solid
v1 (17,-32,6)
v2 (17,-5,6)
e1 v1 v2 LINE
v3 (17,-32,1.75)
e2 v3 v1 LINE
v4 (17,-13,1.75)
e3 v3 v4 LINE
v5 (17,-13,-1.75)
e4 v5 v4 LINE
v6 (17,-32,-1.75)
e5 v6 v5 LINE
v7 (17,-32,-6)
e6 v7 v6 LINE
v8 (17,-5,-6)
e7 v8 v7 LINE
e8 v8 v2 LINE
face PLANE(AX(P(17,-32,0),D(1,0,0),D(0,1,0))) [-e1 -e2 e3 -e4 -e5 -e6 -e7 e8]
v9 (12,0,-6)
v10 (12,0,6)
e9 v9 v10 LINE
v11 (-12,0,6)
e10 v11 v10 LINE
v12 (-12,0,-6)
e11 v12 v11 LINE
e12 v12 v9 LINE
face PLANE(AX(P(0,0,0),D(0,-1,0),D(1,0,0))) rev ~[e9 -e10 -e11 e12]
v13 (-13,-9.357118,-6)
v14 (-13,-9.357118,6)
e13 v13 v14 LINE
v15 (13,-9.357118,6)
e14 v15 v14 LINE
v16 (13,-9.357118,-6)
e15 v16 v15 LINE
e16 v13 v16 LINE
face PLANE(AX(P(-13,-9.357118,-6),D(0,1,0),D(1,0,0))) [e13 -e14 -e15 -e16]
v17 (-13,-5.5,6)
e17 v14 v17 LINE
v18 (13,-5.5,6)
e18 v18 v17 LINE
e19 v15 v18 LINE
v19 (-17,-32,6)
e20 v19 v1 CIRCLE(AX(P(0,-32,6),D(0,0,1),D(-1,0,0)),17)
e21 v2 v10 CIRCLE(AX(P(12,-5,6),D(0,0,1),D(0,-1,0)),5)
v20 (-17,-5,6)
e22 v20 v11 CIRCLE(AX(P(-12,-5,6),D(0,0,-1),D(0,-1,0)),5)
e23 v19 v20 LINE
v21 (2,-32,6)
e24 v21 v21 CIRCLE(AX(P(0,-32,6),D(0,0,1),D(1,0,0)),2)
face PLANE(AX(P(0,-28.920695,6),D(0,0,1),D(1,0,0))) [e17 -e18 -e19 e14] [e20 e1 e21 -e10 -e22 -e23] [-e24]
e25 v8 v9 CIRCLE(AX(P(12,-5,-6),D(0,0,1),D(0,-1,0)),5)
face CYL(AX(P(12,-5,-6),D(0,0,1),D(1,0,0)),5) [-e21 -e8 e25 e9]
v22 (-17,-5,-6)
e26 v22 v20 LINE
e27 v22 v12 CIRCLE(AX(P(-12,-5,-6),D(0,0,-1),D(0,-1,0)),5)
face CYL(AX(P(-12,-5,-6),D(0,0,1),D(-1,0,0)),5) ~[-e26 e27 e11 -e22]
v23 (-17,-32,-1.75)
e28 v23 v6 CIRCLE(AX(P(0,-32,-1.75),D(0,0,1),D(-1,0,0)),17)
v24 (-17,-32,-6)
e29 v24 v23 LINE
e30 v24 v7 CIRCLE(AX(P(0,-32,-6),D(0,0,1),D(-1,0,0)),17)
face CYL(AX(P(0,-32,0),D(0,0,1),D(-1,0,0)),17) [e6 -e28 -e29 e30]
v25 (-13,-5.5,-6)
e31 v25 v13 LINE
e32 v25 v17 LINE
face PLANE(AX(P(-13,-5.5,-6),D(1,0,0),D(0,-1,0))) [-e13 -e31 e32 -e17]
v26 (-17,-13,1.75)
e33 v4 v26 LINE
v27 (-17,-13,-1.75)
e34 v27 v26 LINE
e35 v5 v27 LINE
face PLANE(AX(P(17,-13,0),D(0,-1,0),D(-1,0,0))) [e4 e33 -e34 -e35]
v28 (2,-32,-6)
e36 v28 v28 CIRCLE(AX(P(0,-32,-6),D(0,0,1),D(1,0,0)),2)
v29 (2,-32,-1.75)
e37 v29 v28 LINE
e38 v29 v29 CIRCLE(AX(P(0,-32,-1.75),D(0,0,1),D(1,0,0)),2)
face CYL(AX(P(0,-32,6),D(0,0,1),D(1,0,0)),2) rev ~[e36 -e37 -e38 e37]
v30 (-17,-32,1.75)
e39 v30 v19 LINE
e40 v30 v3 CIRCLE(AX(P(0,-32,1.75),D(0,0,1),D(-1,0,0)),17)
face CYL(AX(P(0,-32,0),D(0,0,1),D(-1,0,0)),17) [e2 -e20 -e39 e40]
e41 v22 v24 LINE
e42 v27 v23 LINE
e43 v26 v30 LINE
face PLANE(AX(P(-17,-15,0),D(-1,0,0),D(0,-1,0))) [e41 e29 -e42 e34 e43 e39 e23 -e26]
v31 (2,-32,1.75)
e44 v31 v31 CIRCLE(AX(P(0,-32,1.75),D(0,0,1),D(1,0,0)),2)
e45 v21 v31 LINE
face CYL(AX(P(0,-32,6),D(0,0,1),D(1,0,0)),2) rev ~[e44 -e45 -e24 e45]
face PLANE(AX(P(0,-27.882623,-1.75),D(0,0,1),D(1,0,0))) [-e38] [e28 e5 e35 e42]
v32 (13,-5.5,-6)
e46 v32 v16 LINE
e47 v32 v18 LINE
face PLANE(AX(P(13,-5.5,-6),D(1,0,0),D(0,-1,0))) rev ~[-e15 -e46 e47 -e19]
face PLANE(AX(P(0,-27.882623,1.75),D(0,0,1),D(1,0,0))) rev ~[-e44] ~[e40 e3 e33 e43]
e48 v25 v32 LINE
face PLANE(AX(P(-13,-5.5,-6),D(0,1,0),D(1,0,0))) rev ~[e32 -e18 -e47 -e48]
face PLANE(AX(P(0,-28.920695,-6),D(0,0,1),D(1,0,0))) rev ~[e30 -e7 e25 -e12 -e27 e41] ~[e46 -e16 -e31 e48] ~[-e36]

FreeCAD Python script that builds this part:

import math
import FreeCAD as App
import Part
import Sketcher


def edges_at(feature, points):
    """Names of the edges that pass closest to the given points."""
    edges = feature.Shape.Edges
    near = lambda p: min(range(len(edges)), key=lambda i: edges[i].distToShape(Part.Vertex(*p))[0])
    return sorted({f"Edge{near(p) + 1}" for p in points})


def add_polygon(sketch, points):
    """Adds a closed chain of lines whose ends are joined by coincident constraints."""
    first, n = sketch.GeometryCount, len(points)
    for a, b in zip(points, points[1:] + points[:1]):
        sketch.addGeometry(Part.LineSegment(App.Vector(*a, 0), App.Vector(*b, 0)), False)
    for i in range(n):
        sketch.addConstraint(Sketcher.Constraint("Coincident", first + i, 2, first + (i + 1) % n, 1))

doc = App.newDocument("Part")
body = doc.addObject("PartDesign::Body", "Body")

# Sketch on XZ plane
sketch1 = body.newObject("Sketcher::SketchObject", "Sketch")
sketch1.AttachmentSupport = (doc.getObject("XZ_Plane"), [""])
sketch1.MapMode = "FlatFace"
add_polygon(sketch1, [(-17, 6), (-17, -6), (17, -6), (17, 6)])  # lines 0-3
sketch1.addConstraint(Sketcher.Constraint("Vertical", 0))
sketch1.addConstraint(Sketcher.Constraint("Horizontal", 1))
sketch1.addConstraint(Sketcher.Constraint("Vertical", 2))
sketch1.addConstraint(Sketcher.Constraint("Horizontal", 3))
sketch1.addConstraint(Sketcher.Constraint("Symmetric", 0, 2, 2, 2, -1, 1))
sketch1.addConstraint(Sketcher.Constraint("DistanceX", 1, 1, 1, 2, 34.0))
sketch1.addConstraint(Sketcher.Constraint("DistanceY", 0, 2, 0, 1, 12.0))
pad1 = body.newObject("PartDesign::Pad", "Pad")
pad1.Profile = sketch1
pad1.Length = 15

# Sketch on XY plane
sketch2 = body.newObject("Sketcher::SketchObject", "Sketch001")
sketch2.AttachmentSupport = (doc.getObject("XY_Plane"), [""])
sketch2.MapMode = "FlatFace"
sketch2.AttachmentOffset = App.Placement(App.Vector(0, 0, -6), App.Rotation())
add_polygon(sketch2, [(-13, -9.4), (-13, -5.5), (13, -5.5), (13, -9.4)])  # lines 0-3
sketch2.addConstraint(Sketcher.Constraint("Vertical", 0))
sketch2.addConstraint(Sketcher.Constraint("Horizontal", 1))
sketch2.addConstraint(Sketcher.Constraint("Vertical", 2))
sketch2.addConstraint(Sketcher.Constraint("Horizontal", 3))
sketch2.addConstraint(Sketcher.Constraint("DistanceX", 1, 1, 1, 2, 26.0))
sketch2.addConstraint(Sketcher.Constraint("DistanceX", 0, 2, -1, 1, 13.0))
sketch2.addConstraint(Sketcher.Constraint("DistanceY", 0, 2, -1, 1, 5.5))
sketch2.addConstraint(Sketcher.Constraint("DistanceY", 0, 1, 0, 2, 3.857118))
pocket1 = body.newObject("PartDesign::Pocket", "Pocket")
pocket1.Profile = sketch2
pocket1.Length = 25
pocket1.Reversed = True

# Sketch on XY plane
sketch3 = body.newObject("Sketcher::SketchObject", "Sketch002")
sketch3.AttachmentSupport = (doc.getObject("XY_Plane"), [""])
sketch3.MapMode = "FlatFace"
sketch3.addGeometry(Part.LineSegment(App.Vector(-17, -15, 0), App.Vector(-17, -32, 0)), False)
sketch3.addGeometry(Part.ArcOfCircle(Part.Circle(App.Vector(0, -32, 0), App.Vector(0, 0, 1), 17), math.radians(180), math.radians(360)), False)
sketch3.addGeometry(Part.LineSegment(App.Vector(17, -32, 0), App.Vector(17, -15, 0)), False)
sketch3.addGeometry(Part.LineSegment(App.Vector(17, -15, 0), App.Vector(-17, -15, 0)), False)
sketch3.addConstraint(Sketcher.Constraint("Tangent", 0, 2, 1, 1))
sketch3.addConstraint(Sketcher.Constraint("Tangent", 1, 2, 2, 1))
sketch3.addConstraint(Sketcher.Constraint("Coincident", 2, 2, 3, 1))
sketch3.addConstraint(Sketcher.Constraint("Coincident", 3, 2, 0, 1))
sketch3.addConstraint(Sketcher.Constraint("Vertical", 0))
sketch3.addConstraint(Sketcher.Constraint("Vertical", 2))
sketch3.addConstraint(Sketcher.Constraint("Horizontal", 3))
sketch3.addConstraint(Sketcher.Constraint("PointOnObject", 1, 3, -2))
sketch3.addConstraint(Sketcher.Constraint("Radius", 1, 17.0))
sketch3.addConstraint(Sketcher.Constraint("DistanceY", 0, 2, 0, 1, 17.0))
sketch3.addConstraint(Sketcher.Constraint("DistanceY", 1, 3, -1, 1, 32.0))
pad2 = body.newObject("PartDesign::Pad", "Pad001")
pad2.Profile = sketch3
pad2.Type = "TwoLengths"
pad2.Length = 6
pad2.Length2 = 6

# Sketch on XY plane
sketch4 = body.newObject("Sketcher::SketchObject", "Sketch003")
sketch4.AttachmentSupport = (doc.getObject("XY_Plane"), [""])
sketch4.MapMode = "FlatFace"
sketch4.AttachmentOffset = App.Placement(App.Vector(0, 0, 6), App.Rotation())
sketch4.addGeometry(Part.Circle(App.Vector(0, -32, 0), App.Vector(0, 0, 1), 2), False)
sketch4.addConstraint(Sketcher.Constraint("PointOnObject", 0, 3, -2))
sketch4.addConstraint(Sketcher.Constraint("Diameter", 0, 4.0))
sketch4.addConstraint(Sketcher.Constraint("DistanceY", 0, 3, -1, 1, 32.0))
pocket2 = body.newObject("PartDesign::Pocket", "Pocket001")
pocket2.Profile = sketch4
pocket2.Length = 25

# Sketch on XY plane
sketch5 = body.newObject("Sketcher::SketchObject", "Sketch004")
sketch5.AttachmentSupport = (doc.getObject("XY_Plane"), [""])
sketch5.MapMode = "FlatFace"
sketch5.addGeometry(Part.LineSegment(App.Vector(-17, -13, 0), App.Vector(-17, -32, 0)), False)
sketch5.addGeometry(Part.ArcOfCircle(Part.Circle(App.Vector(0, -32, 0), App.Vector(0, 0, 1), 17), math.radians(180), math.radians(360)), False)
sketch5.addGeometry(Part.LineSegment(App.Vector(17, -32, 0), App.Vector(17, -13, 0)), False)
sketch5.addGeometry(Part.LineSegment(App.Vector(17, -13, 0), App.Vector(-17, -13, 0)), False)
sketch5.addConstraint(Sketcher.Constraint("Tangent", 0, 2, 1, 1))
sketch5.addConstraint(Sketcher.Constraint("Tangent", 1, 2, 2, 1))
sketch5.addConstraint(Sketcher.Constraint("Coincident", 2, 2, 3, 1))
sketch5.addConstraint(Sketcher.Constraint("Coincident", 3, 2, 0, 1))
sketch5.addConstraint(Sketcher.Constraint("Vertical", 0))
sketch5.addConstraint(Sketcher.Constraint("Vertical", 2))
sketch5.addConstraint(Sketcher.Constraint("Horizontal", 3))
sketch5.addConstraint(Sketcher.Constraint("PointOnObject", 1, 3, -2))
sketch5.addConstraint(Sketcher.Constraint("Radius", 1, 17.0))
sketch5.addConstraint(Sketcher.Constraint("DistanceY", 0, 2, 0, 1, 19.0))
sketch5.addConstraint(Sketcher.Constraint("DistanceY", 1, 3, -1, 1, 32.0))
pocket3 = body.newObject("PartDesign::Pocket", "Pocket002")
pocket3.Profile = sketch5
pocket3.Type = "TwoLengths"
pocket3.Length = 1.75
pocket3.Length2 = 1.75
doc.recompute()

fillet = body.newObject("PartDesign::Fillet", "Fillet")
fillet.Base = (pocket3, edges_at(pocket3, [(-17, 0, 0), (17, 0, 0)]))
fillet.Radius = 5

doc.recompute()
